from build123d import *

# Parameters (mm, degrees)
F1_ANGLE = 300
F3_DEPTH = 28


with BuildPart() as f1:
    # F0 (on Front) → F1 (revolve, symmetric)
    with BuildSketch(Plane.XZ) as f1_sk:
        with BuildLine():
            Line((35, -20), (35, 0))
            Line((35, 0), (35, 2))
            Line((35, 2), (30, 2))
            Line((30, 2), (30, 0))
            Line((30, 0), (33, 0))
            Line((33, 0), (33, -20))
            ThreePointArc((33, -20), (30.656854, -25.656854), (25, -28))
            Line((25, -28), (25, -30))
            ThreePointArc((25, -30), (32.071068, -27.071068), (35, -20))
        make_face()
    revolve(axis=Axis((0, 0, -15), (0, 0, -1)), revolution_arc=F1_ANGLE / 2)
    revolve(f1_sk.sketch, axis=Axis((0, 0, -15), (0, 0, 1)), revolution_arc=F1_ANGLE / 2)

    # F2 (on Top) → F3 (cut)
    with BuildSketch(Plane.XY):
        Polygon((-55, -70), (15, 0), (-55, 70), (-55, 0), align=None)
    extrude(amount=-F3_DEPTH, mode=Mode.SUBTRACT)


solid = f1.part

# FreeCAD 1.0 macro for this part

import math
import FreeCAD as App
import Part
import Sketcher

V = App.Vector

doc = App.newDocument("Part")
body = doc.addObject("PartDesign::Body", "Body")

# Sketch on XZ plane
sketch1 = body.newObject("Sketcher::SketchObject", "Sketch")
sketch1.AttachmentSupport = (doc.getObject("XZ_Plane"), [""])
sketch1.MapMode = "FlatFace"
sketch1.addGeometry([
    Part.LineSegment(V(35, -20, 0), V(35, 2, 0)),  # 0
    Part.LineSegment(V(35, 2, 0), V(30, 2, 0)),  # 1
    Part.LineSegment(V(30, 2, 0), V(30, 0, 0)),  # 2
    Part.LineSegment(V(30, 0, 0), V(33, 0, 0)),  # 3
    Part.LineSegment(V(33, 0, 0), V(33, -20, 0)),  # 4
    Part.ArcOfCircle(Part.Circle(V(25, -20, 0), V(0, 0, 1), 8), math.radians(-90), math.radians(0)),  # 5
    Part.LineSegment(V(25, -28, 0), V(25, -30, 0)),  # 6
    Part.ArcOfCircle(Part.Circle(V(25, -20, 0), V(0, 0, 1), 10), math.radians(-90), math.radians(0)),  # 7
], False)
sketch1.addConstraint([
    Sketcher.Constraint("Coincident", 0, 2, 1, 1),
    Sketcher.Constraint("Coincident", 1, 2, 2, 1),
    Sketcher.Constraint("Coincident", 2, 2, 3, 1),
    Sketcher.Constraint("Coincident", 3, 2, 4, 1),
    Sketcher.Constraint("Tangent", 4, 2, 5, 2),
    Sketcher.Constraint("Coincident", 5, 1, 6, 1),
    Sketcher.Constraint("Coincident", 6, 2, 7, 1),
    Sketcher.Constraint("Tangent", 7, 2, 0, 1),
    Sketcher.Constraint("Vertical", 0),
    Sketcher.Constraint("Horizontal", 1),
    Sketcher.Constraint("Vertical", 2),
    Sketcher.Constraint("Horizontal", 3),
    Sketcher.Constraint("Vertical", 4),
    Sketcher.Constraint("Vertical", 6),
    Sketcher.Constraint("Coincident", 7, 3, 5, 3),
    Sketcher.Constraint("PointOnObject", 2, 2, -1),
    Sketcher.Constraint("Vertical", 7, 3, 5, 1),
    Sketcher.Constraint("Equal", 2, 6),
    Sketcher.Constraint("Radius", 5, 8.000001),
    Sketcher.Constraint("Radius", 7, 9.999999),
    Sketcher.Constraint("DistanceX", 1, 2, 1, 1, 5.0),
    Sketcher.Constraint("DistanceY", 0, 1, 0, 2, 22.0),
    Sketcher.Constraint("DistanceX", -1, 1, 5, 3, 24.999999),
])
revolution = body.newObject("PartDesign::Revolution", "Revolution")
revolution.Profile = sketch1
revolution.ReferenceAxis = (sketch1, ["V_Axis"])
revolution.Angle = 150
revolution.Reversed = True

# Sketch on XZ plane
sketch2 = body.newObject("Sketcher::SketchObject", "Sketch001")
sketch2.AttachmentSupport = (doc.getObject("XZ_Plane"), [""])
sketch2.MapMode = "FlatFace"
sketch2.addGeometry([
    Part.LineSegment(V(35, -20, 0), V(35, 2, 0)),  # 0
    Part.LineSegment(V(35, 2, 0), V(30, 2, 0)),  # 1
    Part.LineSegment(V(30, 2, 0), V(30, 0, 0)),  # 2
    Part.LineSegment(V(30, 0, 0), V(33, 0, 0)),  # 3
    Part.LineSegment(V(33, 0, 0), V(33, -20, 0)),  # 4
    Part.ArcOfCircle(Part.Circle(V(25, -20, 0), V(0, 0, 1), 8), math.radians(-90), math.radians(0)),  # 5
    Part.LineSegment(V(25, -28, 0), V(25, -30, 0)),  # 6
    Part.ArcOfCircle(Part.Circle(V(25, -20, 0), V(0, 0, 1), 10), math.radians(-90), math.radians(0)),  # 7
], False)
sketch2.addConstraint([
    Sketcher.Constraint("Coincident", 0, 2, 1, 1),
    Sketcher.Constraint("Coincident", 1, 2, 2, 1),
    Sketcher.Constraint("Coincident", 2, 2, 3, 1),
    Sketcher.Constraint("Coincident", 3, 2, 4, 1),
    Sketcher.Constraint("Tangent", 4, 2, 5, 2),
    Sketcher.Constraint("Coincident", 5, 1, 6, 1),
    Sketcher.Constraint("Coincident", 6, 2, 7, 1),
    Sketcher.Constraint("Tangent", 7, 2, 0, 1),
    Sketcher.Constraint("Vertical", 0),
    Sketcher.Constraint("Horizontal", 1),
    Sketcher.Constraint("Vertical", 2),
    Sketcher.Constraint("Horizontal", 3),
    Sketcher.Constraint("Vertical", 4),
    Sketcher.Constraint("Vertical", 6),
    Sketcher.Constraint("Coincident", 7, 3, 5, 3),
    Sketcher.Constraint("PointOnObject", 2, 2, -1),
    Sketcher.Constraint("Vertical", 7, 3, 5, 1),
    Sketcher.Constraint("Equal", 2, 6),
    Sketcher.Constraint("Radius", 5, 8.000001),
    Sketcher.Constraint("Radius", 7, 9.999999),
    Sketcher.Constraint("DistanceX", 1, 2, 1, 1, 5.0),
    Sketcher.Constraint("DistanceY", 0, 1, 0, 2, 22.0),
    Sketcher.Constraint("DistanceX", -1, 1, 5, 3, 24.999999),
])
revolution2 = body.newObject("PartDesign::Revolution", "Revolution001")
revolution2.Profile = sketch2
revolution2.ReferenceAxis = (sketch2, ["V_Axis"])
revolution2.Angle = 150

# Sketch on XY plane
sketch3 = body.newObject("Sketcher::SketchObject", "Sketch002")
sketch3.AttachmentSupport = (doc.getObject("XY_Plane"), [""])
sketch3.MapMode = "FlatFace"
sketch3.addGeometry([
    Part.LineSegment(V(-55, -70, 0), V(15, 0, 0)),
    Part.LineSegment(V(15, 0, 0), V(-55, 70, 0)),
    Part.LineSegment(V(-55, 70, 0), V(-55, -70, 0)),
], False)
sketch3.addConstraint([
    Sketcher.Constraint("Coincident", 0, 2, 1, 1),
    Sketcher.Constraint("Coincident", 1, 2, 2, 1),
    Sketcher.Constraint("Coincident", 2, 2, 0, 1),
    Sketcher.Constraint("Vertical", 2),
    Sketcher.Constraint("PointOnObject", 0, 2, -1),
    Sketcher.Constraint("Perpendicular", 0, 1),
    Sketcher.Constraint("Equal", 0, 1),
    Sketcher.Constraint("DistanceY", 2, 2, 2, 1, 140.0),
    Sketcher.Constraint("DistanceX", -1, 1, 0, 2, 15.0),
])
pocket1 = body.newObject("PartDesign::Pocket", "Pocket")
pocket1.Profile = sketch3
pocket1.Length = 28

doc.recompute()
